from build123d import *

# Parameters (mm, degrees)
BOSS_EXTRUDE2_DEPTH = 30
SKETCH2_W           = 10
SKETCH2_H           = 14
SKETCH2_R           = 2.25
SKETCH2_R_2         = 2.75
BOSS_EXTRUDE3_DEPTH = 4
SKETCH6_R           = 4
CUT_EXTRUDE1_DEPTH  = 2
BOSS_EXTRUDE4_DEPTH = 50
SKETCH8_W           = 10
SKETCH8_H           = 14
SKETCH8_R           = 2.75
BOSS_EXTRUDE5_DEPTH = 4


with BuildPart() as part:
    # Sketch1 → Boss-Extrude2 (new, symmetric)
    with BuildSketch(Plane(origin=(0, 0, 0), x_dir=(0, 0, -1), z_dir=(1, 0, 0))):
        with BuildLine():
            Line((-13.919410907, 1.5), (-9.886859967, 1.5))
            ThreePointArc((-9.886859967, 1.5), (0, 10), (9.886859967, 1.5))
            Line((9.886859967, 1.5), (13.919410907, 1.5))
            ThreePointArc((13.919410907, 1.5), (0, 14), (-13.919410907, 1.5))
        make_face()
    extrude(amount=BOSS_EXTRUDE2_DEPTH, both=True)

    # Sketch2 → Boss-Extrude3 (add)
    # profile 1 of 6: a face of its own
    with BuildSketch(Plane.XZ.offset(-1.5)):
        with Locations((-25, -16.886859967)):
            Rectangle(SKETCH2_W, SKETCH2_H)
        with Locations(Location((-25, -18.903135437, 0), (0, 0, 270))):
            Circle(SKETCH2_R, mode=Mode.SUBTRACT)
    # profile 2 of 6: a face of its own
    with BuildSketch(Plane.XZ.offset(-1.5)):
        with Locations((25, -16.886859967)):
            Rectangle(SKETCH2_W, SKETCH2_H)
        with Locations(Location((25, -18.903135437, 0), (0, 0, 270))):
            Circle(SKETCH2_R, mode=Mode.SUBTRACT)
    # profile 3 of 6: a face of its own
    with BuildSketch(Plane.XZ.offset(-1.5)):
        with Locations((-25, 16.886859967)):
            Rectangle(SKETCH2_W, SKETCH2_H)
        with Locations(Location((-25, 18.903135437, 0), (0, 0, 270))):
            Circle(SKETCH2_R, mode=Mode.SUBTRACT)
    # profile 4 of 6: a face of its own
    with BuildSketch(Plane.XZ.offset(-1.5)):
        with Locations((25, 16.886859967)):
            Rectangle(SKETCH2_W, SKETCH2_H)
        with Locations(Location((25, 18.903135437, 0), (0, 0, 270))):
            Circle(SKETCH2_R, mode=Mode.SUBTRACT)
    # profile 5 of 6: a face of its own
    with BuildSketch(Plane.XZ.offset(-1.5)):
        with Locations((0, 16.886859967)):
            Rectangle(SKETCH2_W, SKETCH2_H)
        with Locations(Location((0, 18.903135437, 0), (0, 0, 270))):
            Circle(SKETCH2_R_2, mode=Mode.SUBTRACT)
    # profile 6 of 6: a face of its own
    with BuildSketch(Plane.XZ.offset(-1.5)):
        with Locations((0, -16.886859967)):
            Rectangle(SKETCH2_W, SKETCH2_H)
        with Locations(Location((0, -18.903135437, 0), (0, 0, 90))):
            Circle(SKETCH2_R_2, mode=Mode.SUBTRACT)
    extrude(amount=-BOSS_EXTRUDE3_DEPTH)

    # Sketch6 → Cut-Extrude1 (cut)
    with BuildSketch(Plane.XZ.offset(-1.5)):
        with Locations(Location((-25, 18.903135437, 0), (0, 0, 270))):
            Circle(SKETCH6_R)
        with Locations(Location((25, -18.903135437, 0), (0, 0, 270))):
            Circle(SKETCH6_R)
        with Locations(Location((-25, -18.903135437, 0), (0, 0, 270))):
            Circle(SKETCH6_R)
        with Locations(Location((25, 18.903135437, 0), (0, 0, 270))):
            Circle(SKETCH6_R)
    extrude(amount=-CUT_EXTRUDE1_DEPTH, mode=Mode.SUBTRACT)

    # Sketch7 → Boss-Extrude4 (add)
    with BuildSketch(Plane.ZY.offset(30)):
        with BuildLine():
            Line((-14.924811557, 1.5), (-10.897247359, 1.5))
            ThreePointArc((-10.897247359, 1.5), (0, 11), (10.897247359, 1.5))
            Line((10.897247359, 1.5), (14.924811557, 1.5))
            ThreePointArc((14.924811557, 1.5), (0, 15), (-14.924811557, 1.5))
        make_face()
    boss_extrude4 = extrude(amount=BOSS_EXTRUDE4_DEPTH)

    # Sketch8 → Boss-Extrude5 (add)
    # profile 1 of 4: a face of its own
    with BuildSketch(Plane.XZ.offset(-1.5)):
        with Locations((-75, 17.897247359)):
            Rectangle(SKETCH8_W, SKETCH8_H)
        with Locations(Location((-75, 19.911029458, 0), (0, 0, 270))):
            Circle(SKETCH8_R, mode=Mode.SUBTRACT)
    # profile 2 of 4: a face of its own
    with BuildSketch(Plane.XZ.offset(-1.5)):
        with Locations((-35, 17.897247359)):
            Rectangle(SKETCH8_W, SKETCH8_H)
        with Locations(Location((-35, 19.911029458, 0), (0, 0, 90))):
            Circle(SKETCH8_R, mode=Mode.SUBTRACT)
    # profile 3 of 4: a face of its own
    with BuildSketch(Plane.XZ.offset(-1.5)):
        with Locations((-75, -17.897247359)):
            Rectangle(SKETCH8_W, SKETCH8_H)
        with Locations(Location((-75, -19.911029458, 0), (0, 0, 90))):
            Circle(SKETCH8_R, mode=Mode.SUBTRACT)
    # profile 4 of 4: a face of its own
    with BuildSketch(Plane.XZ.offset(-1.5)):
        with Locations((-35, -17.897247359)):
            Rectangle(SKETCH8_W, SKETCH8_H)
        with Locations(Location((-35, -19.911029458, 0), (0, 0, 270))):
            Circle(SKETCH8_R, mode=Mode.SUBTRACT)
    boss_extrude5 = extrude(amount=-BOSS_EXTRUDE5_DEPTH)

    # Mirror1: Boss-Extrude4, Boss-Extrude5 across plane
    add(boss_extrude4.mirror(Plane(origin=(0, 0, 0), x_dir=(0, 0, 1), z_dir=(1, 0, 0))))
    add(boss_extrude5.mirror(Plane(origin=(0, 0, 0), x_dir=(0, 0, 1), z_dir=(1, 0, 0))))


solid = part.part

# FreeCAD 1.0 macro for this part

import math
import FreeCAD as App
import Part
import Sketcher
from FreeCAD import Vector


def add_polygon(sketch, points):
    """Adds a closed chain of lines whose ends are joined by coincident constraints."""
    first, n = sketch.GeometryCount, len(points)
    for a, b in zip(points, points[1:] + points[:1]):
        sketch.addGeometry(Part.LineSegment(App.Vector(*a, 0), App.Vector(*b, 0)), False)
    for i in range(n):
        sketch.addConstraint(Sketcher.Constraint("Coincident", first + i, 2, first + (i + 1) % n, 1))

doc = App.newDocument("Part")
params = doc.addObject("Spreadsheet::Sheet", "Params")
for row, (alias, value) in enumerate([
    ("sketch1_radius", "10 mm"),
    ("sketch1_radius2", "14 mm"),
    ("pad1_length", "60 mm"),
    ("sketch2_diameter", "4.5 mm"),
    ("sketch2_diameter2", "5.5 mm"),
    ("sketch2_width", "10 mm"),
    ("sketch2_height", "14 mm"),
    ("pad2_length", "4 mm"),
    ("sketch3_diameter", "8 mm"),
    ("pocket1_length", "2 mm"),
    ("sketch4_radius", "11 mm"),
    ("sketch4_radius2", "15 mm"),
    ("pad3_length", "50 mm"),
    ("sketch5_diameter", "5.5 mm"),
    ("sketch5_width", "10 mm"),
    ("sketch5_height", "14 mm"),
    ("pad4_length", "4 mm"),
], start=1):
    params.set(f"A{row}", alias)
    params.set(f"B{row}", "=" + value)
    params.setAlias(f"B{row}", alias)

body = doc.addObject("PartDesign::Body", "Body")

sketch1 = doc.addObject("Sketcher::SketchObject", "Sketch")
body.addObject(sketch1)
sketch1.AttachmentSupport = (doc.YZ_Plane, [""])
sketch1.MapMode = "FlatFace"
sketch1.addGeometry(Part.LineSegment(Vector(1.5, 13.9, 0), Vector(1.5, 9.9, 0)), False)
sketch1.addGeometry(Part.ArcOfCircle(Part.Circle(Vector(0, 0, 0), Vector(0, 0, 1), 10), math.radians(-81), math.radians(81)), False)
sketch1.addGeometry(Part.LineSegment(Vector(1.5, -9.9, 0), Vector(1.5, -13.9, 0)), False)
sketch1.addGeometry(Part.ArcOfCircle(Part.Circle(Vector(0, 0, 0), Vector(0, 0, 1), 14), math.radians(-84), math.radians(84)), False)
sketch1.addConstraint(Sketcher.Constraint("Coincident", 0, 2, 1, 2))
sketch1.addConstraint(Sketcher.Constraint("Coincident", 1, 1, 2, 1))
sketch1.addConstraint(Sketcher.Constraint("Coincident", 2, 2, 3, 1))
sketch1.addConstraint(Sketcher.Constraint("Coincident", 3, 2, 0, 1))
sketch1.addConstraint(Sketcher.Constraint("Vertical", 0))
sketch1.addConstraint(Sketcher.Constraint("Vertical", 2))
sketch1.addConstraint(Sketcher.Constraint("Coincident", 1, 3, -1, 1))
sketch1.addConstraint(Sketcher.Constraint("Coincident", 3, 3, -1, 1))
sketch1.addConstraint(Sketcher.Constraint("Vertical", 0, 2, 1, 1))
sketch1.addConstraint(Sketcher.Constraint("Radius", 1, 10.0))
sketch1.addConstraint(Sketcher.Constraint("Radius", 3, 14.0))
sketch1.addConstraint(Sketcher.Constraint("DistanceX", -1, 1, 0, 2, 1.5))
sketch1.setExpression("Constraints[9]", "Params.sketch1_radius")
sketch1.setExpression("Constraints[10]", "Params.sketch1_radius2")
pad1 = doc.addObject("PartDesign::Pad", "Pad")
body.addObject(pad1)
pad1.Profile = sketch1
pad1.setExpression("Length", "Params.pad1_length")
pad1.Midplane = True

sketch2 = doc.addObject("Sketcher::SketchObject", "Sketch001")
body.addObject(sketch2)
sketch2.AttachmentSupport = (doc.XZ_Plane, [""])
sketch2.MapMode = "FlatFace"
sketch2.AttachmentOffset = App.Placement(Vector(0, 0, -1.5), App.Rotation())
add_polygon(sketch2, [(-30, -9.9), (-30, -23.9), (-20, -23.9), (-20, -9.9)])
sketch2.addGeometry(Part.Circle(Vector(-25, -18.9, 0), Vector(0, 0, 1), 2.2), False)
add_polygon(sketch2, [(20, -9.9), (20, -23.9), (30, -23.9), (30, -9.9)])
sketch2.addGeometry(Part.Circle(Vector(25, -18.9, 0), Vector(0, 0, 1), 2.2), False)
add_polygon(sketch2, [(-30, 23.9), (-30, 9.9), (-20, 9.9), (-20, 23.9)])
sketch2.addGeometry(Part.Circle(Vector(-25, 18.9, 0), Vector(0, 0, 1), 2.2), False)
add_polygon(sketch2, [(20, 23.9), (20, 9.9), (30, 9.9), (30, 23.9)])
sketch2.addGeometry(Part.Circle(Vector(25, 18.9, 0), Vector(0, 0, 1), 2.2), False)
add_polygon(sketch2, [(-5, 23.9), (-5, 9.9), (5, 9.9), (5, 23.9)])
sketch2.addGeometry(Part.Circle(Vector(0, 18.9, 0), Vector(0, 0, 1), 2.8), False)
add_polygon(sketch2, [(-5, -9.9), (-5, -23.9), (5, -23.9), (5, -9.9)])
sketch2.addGeometry(Part.Circle(Vector(0, -18.9, 0), Vector(0, 0, 1), 2.8), False)
sketch2.addConstraint(Sketcher.Constraint("Vertical", 0))
sketch2.addConstraint(Sketcher.Constraint("Horizontal", 1))
sketch2.addConstraint(Sketcher.Constraint("Vertical", 2))
sketch2.addConstraint(Sketcher.Constraint("Horizontal", 3))
sketch2.addConstraint(Sketcher.Constraint("Vertical", 5))
sketch2.addConstraint(Sketcher.Constraint("Horizontal", 6))
sketch2.addConstraint(Sketcher.Constraint("Vertical", 7))
sketch2.addConstraint(Sketcher.Constraint("Horizontal", 8))
sketch2.addConstraint(Sketcher.Constraint("Vertical", 10))
sketch2.addConstraint(Sketcher.Constraint("Horizontal", 11))
sketch2.addConstraint(Sketcher.Constraint("Vertical", 12))
sketch2.addConstraint(Sketcher.Constraint("Horizontal", 13))
sketch2.addConstraint(Sketcher.Constraint("Vertical", 15))
sketch2.addConstraint(Sketcher.Constraint("Horizontal", 16))
sketch2.addConstraint(Sketcher.Constraint("Vertical", 17))
sketch2.addConstraint(Sketcher.Constraint("Horizontal", 18))
sketch2.addConstraint(Sketcher.Constraint("Vertical", 20))
sketch2.addConstraint(Sketcher.Constraint("Horizontal", 21))
sketch2.addConstraint(Sketcher.Constraint("Vertical", 22))
sketch2.addConstraint(Sketcher.Constraint("Horizontal", 23))
sketch2.addConstraint(Sketcher.Constraint("Vertical", 25))
sketch2.addConstraint(Sketcher.Constraint("Horizontal", 26))
sketch2.addConstraint(Sketcher.Constraint("Vertical", 27))
sketch2.addConstraint(Sketcher.Constraint("Horizontal", 28))
sketch2.addConstraint(Sketcher.Constraint("Equal", 4, 9))
sketch2.addConstraint(Sketcher.Constraint("Equal", 9, 14))
sketch2.addConstraint(Sketcher.Constraint("Equal", 14, 19))
sketch2.addConstraint(Sketcher.Constraint("Equal", 24, 29))
sketch2.addConstraint(Sketcher.Constraint("Symmetric", 9, 3, 14, 3, -1, 1))
sketch2.addConstraint(Sketcher.Constraint("Symmetric", 4, 3, 19, 3, -1, 1))
sketch2.addConstraint(Sketcher.Constraint("Symmetric", 24, 3, 29, 3, -1, 1))
sketch2.addConstraint(Sketcher.Constraint("Symmetric", 7, 2, 10, 2, -1, 1))
sketch2.addConstraint(Sketcher.Constraint("Symmetric", 5, 2, 12, 2, -1, 1))
sketch2.addConstraint(Sketcher.Constraint("Symmetric", 2, 2, 15, 2, -1, 1))
sketch2.addConstraint(Sketcher.Constraint("Symmetric", 0, 2, 17, 2, -1, 1))
sketch2.addConstraint(Sketcher.Constraint("Symmetric", 22, 2, 25, 2, -1, 1))
sketch2.addConstraint(Sketcher.Constraint("Symmetric", 20, 2, 27, 2, -1, 1))
sketch2.addConstraint(Sketcher.Constraint("Symmetric", 4, 3, 9, 3, -2))
sketch2.addConstraint(Sketcher.Constraint("Symmetric", 1, 2, 5, 2, -2))
sketch2.addConstraint(Sketcher.Constraint("Symmetric", 3, 2, 7, 2, -2))
sketch2.addConstraint(Sketcher.Constraint("PointOnObject", 24, 3, -2))
sketch2.addConstraint(Sketcher.Constraint("Horizontal", 19, 3, 24, 3))
sketch2.addConstraint(Sketcher.Constraint("Horizontal", 16, 2, 20, 2))
sketch2.addConstraint(Sketcher.Constraint("Horizontal", 18, 2, 22, 2))
sketch2.addConstraint(Sketcher.Constraint("Vertical", 23, 2, 25, 2))
sketch2.addConstraint(Sketcher.Constraint("Equal", 18, 21))
sketch2.addConstraint(Sketcher.Constraint("Diameter", 4, 4.5))
sketch2.addConstraint(Sketcher.Constraint("Diameter", 24, 5.5))
sketch2.addConstraint(Sketcher.Constraint("DistanceX", 1, 1, 1, 2, 10.0))
sketch2.addConstraint(Sketcher.Constraint("DistanceY", 0, 2, 0, 1, 14.0))
sketch2.addConstraint(Sketcher.Constraint("DistanceX", 4, 3, -1, 1, 25.0))
sketch2.addConstraint(Sketcher.Constraint("DistanceX", 0, 2, -1, 1, 30.0))
sketch2.addConstraint(Sketcher.Constraint("DistanceY", 0, 2, -1, 1, 23.88686))
sketch2.addConstraint(Sketcher.Constraint("DistanceY", 4, 3, 14, 3, 37.806271))
sketch2.setExpression("Constraints[70]", "Params.sketch2_diameter")
sketch2.setExpression("Constraints[71]", "Params.sketch2_diameter2")
sketch2.setExpression("Constraints[72]", "Params.sketch2_width")
sketch2.setExpression("Constraints[73]", "Params.sketch2_height")
pad2 = doc.addObject("PartDesign::Pad", "Pad001")
body.addObject(pad2)
pad2.Profile = sketch2
pad2.setExpression("Length", "Params.pad2_length")
pad2.Reversed = True

sketch3 = doc.addObject("Sketcher::SketchObject", "Sketch002")
body.addObject(sketch3)
sketch3.AttachmentSupport = (doc.XZ_Plane, [""])
sketch3.MapMode = "FlatFace"
sketch3.AttachmentOffset = App.Placement(Vector(0, 0, -1.5), App.Rotation())
sketch3.addGeometry(Part.Circle(Vector(-25, 18.9, 0), Vector(0, 0, 1), 4), False)
sketch3.addGeometry(Part.Circle(Vector(25, -18.9, 0), Vector(0, 0, 1), 4), False)
sketch3.addGeometry(Part.Circle(Vector(-25, -18.9, 0), Vector(0, 0, 1), 4), False)
sketch3.addGeometry(Part.Circle(Vector(25, 18.9, 0), Vector(0, 0, 1), 4), False)
sketch3.addConstraint(Sketcher.Constraint("Equal", 0, 1))
sketch3.addConstraint(Sketcher.Constraint("Equal", 1, 2))
sketch3.addConstraint(Sketcher.Constraint("Equal", 2, 3))
sketch3.addConstraint(Sketcher.Constraint("Symmetric", 0, 3, 1, 3, -1, 1))
sketch3.addConstraint(Sketcher.Constraint("Symmetric", 2, 3, 3, 3, -1, 1))
sketch3.addConstraint(Sketcher.Constraint("Symmetric", 1, 3, 2, 3, -2))
sketch3.addConstraint(Sketcher.Constraint("Diameter", 0, 8.0))
sketch3.addConstraint(Sketcher.Constraint("DistanceX", 0, 3, -1, 1, 25.0))
sketch3.addConstraint(Sketcher.Constraint("DistanceY", 1, 3, 0, 3, 37.806271))
sketch3.setExpression("Constraints[6]", "Params.sketch3_diameter")
pocket1 = doc.addObject("PartDesign::Pocket", "Pocket")
body.addObject(pocket1)
pocket1.Profile = sketch3
pocket1.setExpression("Length", "Params.pocket1_length")

sketch4 = doc.addObject("Sketcher::SketchObject", "Sketch003")
body.addObject(sketch4)
sketch4.AttachmentSupport = (doc.YZ_Plane, [""])
sketch4.MapMode = "FlatFace"
sketch4.AttachmentOffset = App.Placement(Vector(0, 0, -30), App.Rotation())
sketch4.addGeometry(Part.LineSegment(Vector(1.5, -14.9, 0), Vector(1.5, -10.9, 0)), False)
sketch4.addGeometry(Part.ArcOfCircle(Part.Circle(Vector(0, 0, 0), Vector(0, 0, 1), 11), math.radians(-82), math.radians(82)), False)
sketch4.addGeometry(Part.LineSegment(Vector(1.5, 10.9, 0), Vector(1.5, 14.9, 0)), False)
sketch4.addGeometry(Part.ArcOfCircle(Part.Circle(Vector(0, 0, 0), Vector(0, 0, 1), 15), math.radians(-84), math.radians(84)), False)
sketch4.addConstraint(Sketcher.Constraint("Coincident", 0, 2, 1, 1))
sketch4.addConstraint(Sketcher.Constraint("Coincident", 1, 2, 2, 1))
sketch4.addConstraint(Sketcher.Constraint("Coincident", 2, 2, 3, 2))
sketch4.addConstraint(Sketcher.Constraint("Coincident", 3, 1, 0, 1))
sketch4.addConstraint(Sketcher.Constraint("Vertical", 0))
sketch4.addConstraint(Sketcher.Constraint("Vertical", 2))
sketch4.addConstraint(Sketcher.Constraint("Coincident", 1, 3, -1, 1))
sketch4.addConstraint(Sketcher.Constraint("Coincident", 3, 3, -1, 1))
sketch4.addConstraint(Sketcher.Constraint("Vertical", 0, 2, 1, 2))
sketch4.addConstraint(Sketcher.Constraint("Radius", 1, 11.0))
sketch4.addConstraint(Sketcher.Constraint("Radius", 3, 15.0))
sketch4.addConstraint(Sketcher.Constraint("DistanceX", -1, 1, 0, 2, 1.5))
sketch4.setExpression("Constraints[9]", "Params.sketch4_radius")
sketch4.setExpression("Constraints[10]", "Params.sketch4_radius2")
pad3 = doc.addObject("PartDesign::Pad", "Pad002")
body.addObject(pad3)
pad3.Profile = sketch4
pad3.setExpression("Length", "Params.pad3_length")
pad3.Reversed = True

sketch5 = doc.addObject("Sketcher::SketchObject", "Sketch004")
body.addObject(sketch5)
sketch5.AttachmentSupport = (doc.XZ_Plane, [""])
sketch5.MapMode = "FlatFace"
sketch5.AttachmentOffset = App.Placement(Vector(0, 0, -1.5), App.Rotation())
add_polygon(sketch5, [(-80, 24.9), (-80, 10.9), (-70, 10.9), (-70, 24.9)])
sketch5.addGeometry(Part.Circle(Vector(-75, 19.9, 0), Vector(0, 0, 1), 2.8), False)
add_polygon(sketch5, [(-40, 24.9), (-40, 10.9), (-30, 10.9), (-30, 24.9)])
sketch5.addGeometry(Part.Circle(Vector(-35, 19.9, 0), Vector(0, 0, 1), 2.8), False)
add_polygon(sketch5, [(-80, -10.9), (-80, -24.9), (-70, -24.9), (-70, -10.9)])
sketch5.addGeometry(Part.Circle(Vector(-75, -19.9, 0), Vector(0, 0, 1), 2.8), False)
add_polygon(sketch5, [(-40, -10.9), (-40, -24.9), (-30, -24.9), (-30, -10.9)])
sketch5.addGeometry(Part.Circle(Vector(-35, -19.9, 0), Vector(0, 0, 1), 2.8), False)
sketch5.addConstraint(Sketcher.Constraint("Vertical", 0))
sketch5.addConstraint(Sketcher.Constraint("Horizontal", 1))
sketch5.addConstraint(Sketcher.Constraint("Vertical", 2))
sketch5.addConstraint(Sketcher.Constraint("Horizontal", 3))
sketch5.addConstraint(Sketcher.Constraint("Vertical", 5))
sketch5.addConstraint(Sketcher.Constraint("Horizontal", 6))
sketch5.addConstraint(Sketcher.Constraint("Vertical", 7))
sketch5.addConstraint(Sketcher.Constraint("Horizontal", 8))
sketch5.addConstraint(Sketcher.Constraint("Vertical", 10))
sketch5.addConstraint(Sketcher.Constraint("Horizontal", 11))
sketch5.addConstraint(Sketcher.Constraint("Vertical", 12))
sketch5.addConstraint(Sketcher.Constraint("Horizontal", 13))
sketch5.addConstraint(Sketcher.Constraint("Vertical", 15))
sketch5.addConstraint(Sketcher.Constraint("Horizontal", 16))
sketch5.addConstraint(Sketcher.Constraint("Vertical", 17))
sketch5.addConstraint(Sketcher.Constraint("Horizontal", 18))
sketch5.addConstraint(Sketcher.Constraint("Equal", 4, 9))
sketch5.addConstraint(Sketcher.Constraint("Equal", 9, 14))
sketch5.addConstraint(Sketcher.Constraint("Equal", 14, 19))
sketch5.addConstraint(Sketcher.Constraint("Symmetric", 4, 3, 14, 3, -1))
sketch5.addConstraint(Sketcher.Constraint("Symmetric", 9, 3, 19, 3, -1))
sketch5.addConstraint(Sketcher.Constraint("Symmetric", 3, 2, 10, 2, -1))
sketch5.addConstraint(Sketcher.Constraint("Symmetric", 1, 2, 12, 2, -1))
sketch5.addConstraint(Sketcher.Constraint("Symmetric", 8, 2, 15, 2, -1))
sketch5.addConstraint(Sketcher.Constraint("Symmetric", 6, 2, 17, 2, -1))
sketch5.addConstraint(Sketcher.Constraint("Horizontal", 4, 3, 9, 3))
sketch5.addConstraint(Sketcher.Constraint("Horizontal", 1, 2, 5, 2))
sketch5.addConstraint(Sketcher.Constraint("Horizontal", 3, 2, 7, 2))
sketch5.addConstraint(Sketcher.Constraint("Equal", 3, 6))
sketch5.addConstraint(Sketcher.Constraint("Diameter", 4, 5.5))
sketch5.addConstraint(Sketcher.Constraint("DistanceX", 1, 1, 1, 2, 10.0))
sketch5.addConstraint(Sketcher.Constraint("DistanceY", 0, 2, 0, 1, 14.0))
sketch5.addConstraint(Sketcher.Constraint("DistanceX", 4, 3, -1, 1, 75.0))
sketch5.addConstraint(Sketcher.Constraint("DistanceX", 9, 3, -1, 1, 35.0))
sketch5.addConstraint(Sketcher.Constraint("DistanceX", 0, 2, -1, 1, 80.0))
sketch5.addConstraint(Sketcher.Constraint("DistanceX", 5, 2, -1, 1, 40.0))
sketch5.addConstraint(Sketcher.Constraint("DistanceY", -1, 1, 4, 3, 19.911029))
sketch5.addConstraint(Sketcher.Constraint("DistanceY", -1, 1, 0, 2, 10.897247))
sketch5.setExpression("Constraints[45]", "Params.sketch5_diameter")
sketch5.setExpression("Constraints[46]", "Params.sketch5_width")
sketch5.setExpression("Constraints[47]", "Params.sketch5_height")
pad4 = doc.addObject("PartDesign::Pad", "Pad003")
body.addObject(pad4)
pad4.Profile = sketch5
pad4.setExpression("Length", "Params.pad4_length")
pad4.Reversed = True
doc.recompute()

mirrored = doc.addObject("PartDesign::Mirrored", "Mirrored")
body.addObject(mirrored)
mirrored.Originals = [pad3, pad4]
mirrored.MirrorPlane = (doc.YZ_Plane, [""])
body.Tip = mirrored

doc.recompute()
